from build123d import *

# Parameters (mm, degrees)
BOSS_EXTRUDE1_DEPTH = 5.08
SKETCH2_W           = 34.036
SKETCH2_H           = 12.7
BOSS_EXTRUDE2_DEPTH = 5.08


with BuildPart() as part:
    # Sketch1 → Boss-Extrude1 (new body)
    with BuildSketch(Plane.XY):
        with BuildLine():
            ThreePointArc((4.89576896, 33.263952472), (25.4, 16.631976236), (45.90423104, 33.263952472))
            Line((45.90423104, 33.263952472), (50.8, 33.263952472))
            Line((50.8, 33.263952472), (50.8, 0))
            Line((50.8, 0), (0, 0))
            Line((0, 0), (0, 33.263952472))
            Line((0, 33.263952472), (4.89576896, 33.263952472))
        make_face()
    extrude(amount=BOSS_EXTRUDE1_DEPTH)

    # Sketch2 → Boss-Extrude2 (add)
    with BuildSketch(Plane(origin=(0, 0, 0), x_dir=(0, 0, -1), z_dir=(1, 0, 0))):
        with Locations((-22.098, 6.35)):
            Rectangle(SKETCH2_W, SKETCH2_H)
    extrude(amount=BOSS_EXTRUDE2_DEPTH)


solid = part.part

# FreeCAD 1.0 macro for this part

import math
import FreeCAD as App
import Part
import Sketcher

V = App.Vector
Q = App.Units.Quantity

doc = App.newDocument("Part")
body = doc.addObject("PartDesign::Body", "Body")

sketch1 = body.newObject("Sketcher::SketchObject", "Sketch")
sketch1.AttachmentSupport = (doc.getObject("XY_Plane"), [""])
sketch1.MapMode = "FlatFace"
sketch1.addGeometry([
    Part.ArcOfCircle(Part.Circle(V(25.4, 37.6, 0), V(0, 0, 1), 21), math.radians(-168), math.radians(-12)),
    Part.LineSegment(V(4.9, 33.3, 0), V(0, 33.3, 0)),
    Part.LineSegment(V(0, 33.3, 0), V(0, 0, 0)),
    Part.LineSegment(V(0, 0, 0), V(50.8, 0, 0)),
    Part.LineSegment(V(50.8, 0, 0), V(50.8, 33.3, 0)),
    Part.LineSegment(V(50.8, 33.3, 0), V(45.9, 33.3, 0)),
], False)
sketch1.addConstraint([
    Sketcher.Constraint("Coincident", 0, 1, 1, 1),
    Sketcher.Constraint("Coincident", 1, 2, 2, 1),
    Sketcher.Constraint("Coincident", 2, 2, 3, 1),
    Sketcher.Constraint("Coincident", 3, 2, 4, 1),
    Sketcher.Constraint("Coincident", 4, 2, 5, 1),
    Sketcher.Constraint("Coincident", 5, 2, 0, 2),
    Sketcher.Constraint("Horizontal", 1),
    Sketcher.Constraint("Vertical", 2),
    Sketcher.Constraint("Horizontal", 3),
    Sketcher.Constraint("Vertical", 4),
    Sketcher.Constraint("Horizontal", 5),
    Sketcher.Constraint("Coincident", 2, 2, -1, 1),
    Sketcher.Constraint("Horizontal", 1, 2, 4, 2),
    Sketcher.Constraint("Equal", 1, 5),
    Sketcher.Constraint("DistanceX", 3, 1, 3, 2, Q("2 in")),
    Sketcher.Constraint("Radius", 0, Q("0.825 in")),
    Sketcher.Constraint("DistanceX", 1, 2, 1, 1, Q("4.895769 mm")),
    Sketcher.Constraint("DistanceY", 2, 2, 2, 1, Q("33.263952 mm")),
])
pad1 = body.newObject("PartDesign::Pad", "Pad")
pad1.Profile = sketch1
pad1.Length = Q("0.2 in")

sketch2 = body.newObject("Sketcher::SketchObject", "Sketch001")
sketch2.AttachmentSupport = (doc.getObject("YZ_Plane"), [""])
sketch2.MapMode = "FlatFace"
sketch2.addGeometry([
    Part.LineSegment(V(13, 39, 0), V(0, 39, 0)),
    Part.LineSegment(V(0, 39, 0), V(0, 5, 0)),
    Part.LineSegment(V(0, 5, 0), V(13, 5, 0)),
    Part.LineSegment(V(13, 5, 0), V(13, 39, 0)),
], False)
sketch2.addConstraint([
    Sketcher.Constraint("Coincident", 0, 2, 1, 1),
    Sketcher.Constraint("Coincident", 1, 2, 2, 1),
    Sketcher.Constraint("Coincident", 2, 2, 3, 1),
    Sketcher.Constraint("Coincident", 3, 2, 0, 1),
    Sketcher.Constraint("Horizontal", 0),
    Sketcher.Constraint("Vertical", 1),
    Sketcher.Constraint("Horizontal", 2),
    Sketcher.Constraint("Vertical", 3),
    Sketcher.Constraint("PointOnObject", 0, 2, -2),
    Sketcher.Constraint("DistanceX", 0, 2, 0, 1, Q("0.5 in")),
    Sketcher.Constraint("DistanceY", 1, 2, 1, 1, Q("1.34 in")),
    Sketcher.Constraint("DistanceY", -1, 1, 1, 2, Q("0.2 in")),
])
pad2 = body.newObject("PartDesign::Pad", "Pad001")
pad2.Profile = sketch2
pad2.Length = Q("0.2 in")

doc.recompute()
